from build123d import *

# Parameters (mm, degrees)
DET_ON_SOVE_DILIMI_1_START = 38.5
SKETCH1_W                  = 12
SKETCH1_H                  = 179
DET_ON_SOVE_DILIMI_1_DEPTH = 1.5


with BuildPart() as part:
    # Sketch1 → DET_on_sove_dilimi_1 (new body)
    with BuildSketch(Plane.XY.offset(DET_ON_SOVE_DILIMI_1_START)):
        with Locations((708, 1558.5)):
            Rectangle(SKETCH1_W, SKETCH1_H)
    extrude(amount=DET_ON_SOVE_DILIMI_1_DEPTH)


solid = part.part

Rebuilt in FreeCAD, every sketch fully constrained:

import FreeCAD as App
import Part
import Sketcher
from FreeCAD import Vector
Q = App.Units.Quantity

doc = App.newDocument("Part")
params = doc.addObject("Spreadsheet::Sheet", "Params")
for row, (alias, value) in enumerate([
    ("sketch1_width", "12 mm"),
    ("sketch1_height", "179 mm"),
    ("pad1_length", "1.5 mm"),
], start=1):
    params.set(f"A{row}", alias)
    params.set(f"B{row}", "=" + value)
    params.setAlias(f"B{row}", alias)

body = doc.addObject("PartDesign::Body", "Body")

# Sketch on XY plane
sketch1 = doc.addObject("Sketcher::SketchObject", "Sketch")
body.addObject(sketch1)
sketch1.AttachmentSupport = (doc.XY_Plane, [""])
sketch1.MapMode = "FlatFace"
sketch1.AttachmentOffset = App.Placement(Vector(0, 0, 38.5), App.Rotation())
sketch1.addGeometry([
    Part.LineSegment(Vector(702, 1648, 0), Vector(702, 1469, 0)),
    Part.LineSegment(Vector(702, 1469, 0), Vector(714, 1469, 0)),
    Part.LineSegment(Vector(714, 1469, 0), Vector(714, 1648, 0)),
    Part.LineSegment(Vector(714, 1648, 0), Vector(702, 1648, 0)),
], False)
sketch1.addConstraint([
    Sketcher.Constraint("Coincident", 0, 2, 1, 1),
    Sketcher.Constraint("Coincident", 1, 2, 2, 1),
    Sketcher.Constraint("Coincident", 2, 2, 3, 1),
    Sketcher.Constraint("Coincident", 3, 2, 0, 1),
    Sketcher.Constraint("Vertical", 0),
    Sketcher.Constraint("Horizontal", 1),
    Sketcher.Constraint("Vertical", 2),
    Sketcher.Constraint("Horizontal", 3),
    Sketcher.Constraint("DistanceX", 1, 1, 1, 2, Q("12 mm")),
    Sketcher.Constraint("DistanceY", 0, 2, 0, 1, Q("179 mm")),
    Sketcher.Constraint("DistanceX", -1, 1, 0, 2, Q("702 mm")),
    Sketcher.Constraint("DistanceY", -1, 1, 0, 2, Q("1469 mm")),
])
sketch1.setExpression("Constraints[8]", "Params.sketch1_width")
sketch1.setExpression("Constraints[9]", "Params.sketch1_height")
pad1 = doc.addObject("PartDesign::Pad", "Pad")
body.addObject(pad1)
pad1.Profile = sketch1
pad1.setExpression("Length", "Params.pad1_length")

doc.recompute()
